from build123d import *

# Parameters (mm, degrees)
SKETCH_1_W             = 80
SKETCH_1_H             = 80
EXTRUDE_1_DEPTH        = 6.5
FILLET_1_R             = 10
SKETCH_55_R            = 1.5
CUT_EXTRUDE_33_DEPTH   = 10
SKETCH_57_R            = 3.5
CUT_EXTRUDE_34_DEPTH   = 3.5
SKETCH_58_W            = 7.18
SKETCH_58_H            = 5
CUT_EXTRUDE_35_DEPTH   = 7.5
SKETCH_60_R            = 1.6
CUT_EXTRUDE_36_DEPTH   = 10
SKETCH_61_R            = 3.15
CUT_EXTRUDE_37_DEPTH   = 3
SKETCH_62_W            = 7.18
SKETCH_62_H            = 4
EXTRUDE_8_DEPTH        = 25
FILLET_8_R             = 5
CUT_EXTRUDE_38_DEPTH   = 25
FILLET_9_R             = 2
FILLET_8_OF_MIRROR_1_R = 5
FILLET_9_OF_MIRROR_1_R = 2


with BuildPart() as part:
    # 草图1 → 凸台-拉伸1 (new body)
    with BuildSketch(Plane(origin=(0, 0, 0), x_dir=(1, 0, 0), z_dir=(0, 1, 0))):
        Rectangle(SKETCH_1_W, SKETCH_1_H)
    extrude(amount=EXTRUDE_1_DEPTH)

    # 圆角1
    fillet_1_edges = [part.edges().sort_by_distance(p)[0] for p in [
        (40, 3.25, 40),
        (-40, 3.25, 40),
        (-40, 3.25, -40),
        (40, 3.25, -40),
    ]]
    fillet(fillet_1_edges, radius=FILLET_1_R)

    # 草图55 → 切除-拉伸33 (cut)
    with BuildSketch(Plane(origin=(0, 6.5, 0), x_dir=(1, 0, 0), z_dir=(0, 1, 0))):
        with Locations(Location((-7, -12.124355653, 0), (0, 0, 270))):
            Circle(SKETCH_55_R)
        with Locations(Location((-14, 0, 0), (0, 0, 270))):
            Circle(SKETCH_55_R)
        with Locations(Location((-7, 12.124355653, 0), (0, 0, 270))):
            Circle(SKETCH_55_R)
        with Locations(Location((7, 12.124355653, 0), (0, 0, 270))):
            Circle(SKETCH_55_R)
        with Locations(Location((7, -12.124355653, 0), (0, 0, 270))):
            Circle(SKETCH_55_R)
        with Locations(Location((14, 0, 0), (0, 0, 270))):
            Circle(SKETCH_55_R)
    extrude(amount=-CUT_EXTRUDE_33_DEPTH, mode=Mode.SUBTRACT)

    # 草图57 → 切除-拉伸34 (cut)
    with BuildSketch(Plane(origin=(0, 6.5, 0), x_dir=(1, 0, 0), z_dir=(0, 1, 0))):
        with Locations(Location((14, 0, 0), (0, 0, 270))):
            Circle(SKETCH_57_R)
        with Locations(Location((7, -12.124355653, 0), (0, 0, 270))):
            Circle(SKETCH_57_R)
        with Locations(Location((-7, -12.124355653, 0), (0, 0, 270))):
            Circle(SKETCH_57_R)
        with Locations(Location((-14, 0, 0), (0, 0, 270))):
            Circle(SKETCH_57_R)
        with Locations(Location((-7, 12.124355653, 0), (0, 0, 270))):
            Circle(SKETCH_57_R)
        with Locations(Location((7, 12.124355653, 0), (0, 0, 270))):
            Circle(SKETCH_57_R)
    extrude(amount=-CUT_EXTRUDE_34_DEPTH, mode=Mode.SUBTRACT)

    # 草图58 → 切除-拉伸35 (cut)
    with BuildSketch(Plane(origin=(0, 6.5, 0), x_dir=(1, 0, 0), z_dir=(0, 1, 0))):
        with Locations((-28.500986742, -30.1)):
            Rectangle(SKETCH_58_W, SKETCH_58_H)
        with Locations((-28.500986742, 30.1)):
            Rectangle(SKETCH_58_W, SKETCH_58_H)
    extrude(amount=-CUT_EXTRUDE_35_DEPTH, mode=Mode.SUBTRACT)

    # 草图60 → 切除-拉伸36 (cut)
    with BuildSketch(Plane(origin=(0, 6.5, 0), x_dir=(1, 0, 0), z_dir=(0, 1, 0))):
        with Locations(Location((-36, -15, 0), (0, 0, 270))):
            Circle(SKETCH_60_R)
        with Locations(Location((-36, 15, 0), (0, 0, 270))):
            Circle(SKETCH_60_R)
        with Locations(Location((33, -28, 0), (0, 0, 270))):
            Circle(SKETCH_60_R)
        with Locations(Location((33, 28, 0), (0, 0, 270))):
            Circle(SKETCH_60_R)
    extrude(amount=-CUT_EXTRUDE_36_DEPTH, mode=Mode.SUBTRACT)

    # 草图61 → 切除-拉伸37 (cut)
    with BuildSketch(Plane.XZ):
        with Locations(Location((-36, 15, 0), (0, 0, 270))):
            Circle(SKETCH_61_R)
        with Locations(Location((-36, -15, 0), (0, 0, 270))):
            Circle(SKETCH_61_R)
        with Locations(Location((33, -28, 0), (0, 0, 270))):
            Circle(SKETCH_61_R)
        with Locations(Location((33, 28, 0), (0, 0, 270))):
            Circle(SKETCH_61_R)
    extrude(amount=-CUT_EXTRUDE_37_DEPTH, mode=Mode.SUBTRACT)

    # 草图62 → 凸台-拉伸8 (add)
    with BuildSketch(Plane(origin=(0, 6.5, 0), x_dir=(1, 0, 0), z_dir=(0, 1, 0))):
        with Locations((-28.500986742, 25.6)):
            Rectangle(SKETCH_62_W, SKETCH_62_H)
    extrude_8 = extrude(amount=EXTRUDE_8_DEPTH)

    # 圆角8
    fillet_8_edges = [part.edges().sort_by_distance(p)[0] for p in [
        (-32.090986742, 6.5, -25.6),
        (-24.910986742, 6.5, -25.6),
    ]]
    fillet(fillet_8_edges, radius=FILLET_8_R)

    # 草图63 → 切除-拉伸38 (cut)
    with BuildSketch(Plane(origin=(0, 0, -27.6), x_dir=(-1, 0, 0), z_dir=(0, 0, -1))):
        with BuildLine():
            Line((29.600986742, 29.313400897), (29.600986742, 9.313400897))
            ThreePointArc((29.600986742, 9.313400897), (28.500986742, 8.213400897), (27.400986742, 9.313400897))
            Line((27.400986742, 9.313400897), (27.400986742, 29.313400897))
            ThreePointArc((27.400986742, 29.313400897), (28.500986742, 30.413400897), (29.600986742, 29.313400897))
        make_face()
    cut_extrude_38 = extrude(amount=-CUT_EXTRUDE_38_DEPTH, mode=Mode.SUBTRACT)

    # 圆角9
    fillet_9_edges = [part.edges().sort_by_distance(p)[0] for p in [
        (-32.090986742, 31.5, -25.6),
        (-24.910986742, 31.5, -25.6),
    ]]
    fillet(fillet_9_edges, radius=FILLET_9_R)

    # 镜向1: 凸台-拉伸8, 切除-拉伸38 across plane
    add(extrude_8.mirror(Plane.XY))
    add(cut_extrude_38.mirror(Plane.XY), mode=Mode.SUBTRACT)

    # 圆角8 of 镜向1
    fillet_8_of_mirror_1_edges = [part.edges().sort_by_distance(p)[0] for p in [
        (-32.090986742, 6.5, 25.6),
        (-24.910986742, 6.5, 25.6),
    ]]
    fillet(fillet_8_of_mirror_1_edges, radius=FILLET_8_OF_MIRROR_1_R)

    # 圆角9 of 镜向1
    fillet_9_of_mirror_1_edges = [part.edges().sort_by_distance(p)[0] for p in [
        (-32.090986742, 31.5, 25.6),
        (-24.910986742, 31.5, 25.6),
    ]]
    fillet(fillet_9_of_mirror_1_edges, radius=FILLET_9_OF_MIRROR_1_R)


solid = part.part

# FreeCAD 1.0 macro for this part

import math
import FreeCAD as App
import Part
import Sketcher


def edges_at(feature, points):
    """Names of the edges that pass closest to the given points."""
    edges = feature.Shape.Edges
    near = lambda p: min(range(len(edges)), key=lambda i: edges[i].distToShape(Part.Vertex(*p))[0])
    return sorted({f"Edge{near(p) + 1}" for p in points})


def add_polygon(sketch, points):
    """Adds a closed chain of lines whose ends are joined by coincident constraints."""
    first, n = sketch.GeometryCount, len(points)
    for a, b in zip(points, points[1:] + points[:1]):
        sketch.addGeometry(Part.LineSegment(App.Vector(*a, 0), App.Vector(*b, 0)), False)
    for i in range(n):
        sketch.addConstraint(Sketcher.Constraint("Coincident", first + i, 2, first + (i + 1) % n, 1))

doc = App.newDocument("Part")
body = doc.addObject("PartDesign::Body", "Body")

# Sketch on XZ plane
sketch1 = body.newObject("Sketcher::SketchObject", "Sketch")
sketch1.AttachmentSupport = (doc.getObject("XZ_Plane"), [""])
sketch1.MapMode = "FlatFace"
add_polygon(sketch1, [(-40, -40), (-40, 40), (40, 40), (40, -40)])  # lines 0-3
sketch1.addConstraint([
    Sketcher.Constraint("Vertical", 0),
    Sketcher.Constraint("Horizontal", 1),
    Sketcher.Constraint("Vertical", 2),
    Sketcher.Constraint("Horizontal", 3),
    Sketcher.Constraint("Symmetric", 0, 2, 2, 2, -1, 1),
    Sketcher.Constraint("Equal", 3, 0),
    Sketcher.Constraint("DistanceX", 1, 1, 1, 2, 80.0),
])
pad1 = body.newObject("PartDesign::Pad", "Pad")
pad1.Profile = sketch1
pad1.Length = 6.5
pad1.Reversed = True
doc.recompute()

fillet = body.newObject("PartDesign::Fillet", "Fillet")
fillet.Base = (pad1, edges_at(pad1, [
    (40, 3.25, 40),
    (-40, 3.25, 40),
    (-40, 3.25, -40),
    (40, 3.25, -40),
]))
fillet.Radius = 10

# Sketch on XZ plane
sketch2 = body.newObject("Sketcher::SketchObject", "Sketch001")
sketch2.AttachmentSupport = (doc.getObject("XZ_Plane"), [""])
sketch2.MapMode = "FlatFace"
sketch2.AttachmentOffset = App.Placement(App.Vector(0, 0, -6.5), App.Rotation())
sketch2.addGeometry([
    Part.Circle(App.Vector(-7, 12.124356, 0), App.Vector(0, 0, 1), 1.5),  # 0
    Part.Circle(App.Vector(-14, 0, 0), App.Vector(0, 0, 1), 1.5),  # 1
    Part.Circle(App.Vector(-7, -12.124356, 0), App.Vector(0, 0, 1), 1.5),  # 2
    Part.Circle(App.Vector(7, -12.124356, 0), App.Vector(0, 0, 1), 1.5),  # 3
    Part.Circle(App.Vector(7, 12.124356, 0), App.Vector(0, 0, 1), 1.5),  # 4
    Part.Circle(App.Vector(14, 0, 0), App.Vector(0, 0, 1), 1.5),  # 5
], False)
sketch2.addConstraint([
    Sketcher.Constraint("Equal", 0, 1),
    Sketcher.Constraint("Equal", 1, 2),
    Sketcher.Constraint("Equal", 2, 3),
    Sketcher.Constraint("Equal", 3, 4),
    Sketcher.Constraint("Equal", 4, 5),
    Sketcher.Constraint("Symmetric", 0, 3, 3, 3, -1, 1),
    Sketcher.Constraint("Symmetric", 2, 3, 4, 3, -1, 1),
    Sketcher.Constraint("Symmetric", 1, 3, 5, 3, -1, 1),
    Sketcher.Constraint("Symmetric", 2, 3, 3, 3, -2),
    Sketcher.Constraint("PointOnObject", 1, 3, -1),
    Sketcher.Constraint("Diameter", 0, 3.0),
    Sketcher.Constraint("DistanceX", 0, 3, -1, 1, 7.0),
    Sketcher.Constraint("DistanceX", 1, 3, -1, 1, 14.0),
    Sketcher.Constraint("DistanceY", 2, 3, 0, 3, 24.248711),
])
pocket1 = body.newObject("PartDesign::Pocket", "Pocket")
pocket1.Profile = sketch2
pocket1.Length = 10
pocket1.Reversed = True

# Sketch on XZ plane
sketch3 = body.newObject("Sketcher::SketchObject", "Sketch002")
sketch3.AttachmentSupport = (doc.getObject("XZ_Plane"), [""])
sketch3.MapMode = "FlatFace"
sketch3.AttachmentOffset = App.Placement(App.Vector(0, 0, -6.5), App.Rotation())
sketch3.addGeometry([
    Part.Circle(App.Vector(14, 0, 0), App.Vector(0, 0, 1), 3.5),  # 0
    Part.Circle(App.Vector(7, 12.124356, 0), App.Vector(0, 0, 1), 3.5),  # 1
    Part.Circle(App.Vector(-7, 12.124356, 0), App.Vector(0, 0, 1), 3.5),  # 2
    Part.Circle(App.Vector(-14, 0, 0), App.Vector(0, 0, 1), 3.5),  # 3
    Part.Circle(App.Vector(-7, -12.124356, 0), App.Vector(0, 0, 1), 3.5),  # 4
    Part.Circle(App.Vector(7, -12.124356, 0), App.Vector(0, 0, 1), 3.5),  # 5
], False)
sketch3.addConstraint([
    Sketcher.Constraint("Equal", 0, 1),
    Sketcher.Constraint("Equal", 1, 2),
    Sketcher.Constraint("Equal", 2, 3),
    Sketcher.Constraint("Equal", 3, 4),
    Sketcher.Constraint("Equal", 4, 5),
    Sketcher.Constraint("Symmetric", 0, 3, 3, 3, -1, 1),
    Sketcher.Constraint("Symmetric", 1, 3, 4, 3, -1, 1),
    Sketcher.Constraint("Symmetric", 2, 3, 5, 3, -1, 1),
    Sketcher.Constraint("Symmetric", 1, 3, 2, 3, -2),
    Sketcher.Constraint("PointOnObject", 0, 3, -1),
    Sketcher.Constraint("Diameter", 0, 7.0),
    Sketcher.Constraint("DistanceX", -1, 1, 0, 3, 14.0),
    Sketcher.Constraint("DistanceX", -1, 1, 1, 3, 7.0),
    Sketcher.Constraint("DistanceY", 4, 3, 2, 3, 24.248711),
])
pocket2 = body.newObject("PartDesign::Pocket", "Pocket001")
pocket2.Profile = sketch3
pocket2.Length = 3.5
pocket2.Reversed = True

# Sketch on XZ plane
sketch4 = body.newObject("Sketcher::SketchObject", "Sketch003")
sketch4.AttachmentSupport = (doc.getObject("XZ_Plane"), [""])
sketch4.MapMode = "FlatFace"
sketch4.AttachmentOffset = App.Placement(App.Vector(0, 0, -6.5), App.Rotation())
add_polygon(sketch4, [(-32.090987, 27.6), (-32.090987, 32.6), (-24.910987, 32.6), (-24.910987, 27.6)])  # lines 0-3
add_polygon(sketch4, [(-32.090987, -32.6), (-32.090987, -27.6), (-24.910987, -27.6), (-24.910987, -32.6)])  # lines 4-7
sketch4.addConstraint([
    Sketcher.Constraint("Vertical", 0),
    Sketcher.Constraint("Horizontal", 1),
    Sketcher.Constraint("Vertical", 2),
    Sketcher.Constraint("Horizontal", 3),
    Sketcher.Constraint("Vertical", 4),
    Sketcher.Constraint("Horizontal", 5),
    Sketcher.Constraint("Vertical", 6),
    Sketcher.Constraint("Horizontal", 7),
    Sketcher.Constraint("Symmetric", 3, 2, 4, 2, -1),
    Sketcher.Constraint("Symmetric", 1, 2, 6, 2, -1),
    Sketcher.Constraint("DistanceY", 0, 1, 0, 2, 5.0),
    Sketcher.Constraint("DistanceX", 1, 1, 1, 2, 7.18),
    Sketcher.Constraint("DistanceY", -1, 1, 0, 2, 32.6),
    Sketcher.Constraint("DistanceX", 0, 2, -1, 1, 32.090987),
])
pocket3 = body.newObject("PartDesign::Pocket", "Pocket002")
pocket3.Profile = sketch4
pocket3.Length = 7.5
pocket3.Reversed = True

# Sketch on XZ plane
sketch5 = body.newObject("Sketcher::SketchObject", "Sketch004")
sketch5.AttachmentSupport = (doc.getObject("XZ_Plane"), [""])
sketch5.MapMode = "FlatFace"
sketch5.AttachmentOffset = App.Placement(App.Vector(0, 0, -6.5), App.Rotation())
sketch5.addGeometry([
    Part.Circle(App.Vector(-36, 15, 0), App.Vector(0, 0, 1), 1.6),
    Part.Circle(App.Vector(-36, -15, 0), App.Vector(0, 0, 1), 1.6),
    Part.Circle(App.Vector(33, 28, 0), App.Vector(0, 0, 1), 1.6),
    Part.Circle(App.Vector(33, -28, 0), App.Vector(0, 0, 1), 1.6),
], False)
sketch5.addConstraint([
    Sketcher.Constraint("Equal", 0, 1),
    Sketcher.Constraint("Equal", 1, 2),
    Sketcher.Constraint("Equal", 2, 3),
    Sketcher.Constraint("Symmetric", 0, 3, 1, 3, -1),
    Sketcher.Constraint("Symmetric", 2, 3, 3, 3, -1),
    Sketcher.Constraint("Diameter", 0, 3.2),
    Sketcher.Constraint("DistanceX", 0, 3, -1, 1, 36.0),
    Sketcher.Constraint("DistanceY", -1, 1, 0, 3, 15.0),
    Sketcher.Constraint("DistanceX", -1, 1, 2, 3, 33.0),
    Sketcher.Constraint("DistanceY", -1, 1, 2, 3, 28.0),
])
pocket4 = body.newObject("PartDesign::Pocket", "Pocket003")
pocket4.Profile = sketch5
pocket4.Length = 10
pocket4.Reversed = True

# Sketch on XZ plane
sketch6 = body.newObject("Sketcher::SketchObject", "Sketch005")
sketch6.AttachmentSupport = (doc.getObject("XZ_Plane"), [""])
sketch6.MapMode = "FlatFace"
sketch6.addGeometry([
    Part.Circle(App.Vector(-36, 15, 0), App.Vector(0, 0, 1), 3.15),
    Part.Circle(App.Vector(-36, -15, 0), App.Vector(0, 0, 1), 3.15),
    Part.Circle(App.Vector(33, -28, 0), App.Vector(0, 0, 1), 3.15),
    Part.Circle(App.Vector(33, 28, 0), App.Vector(0, 0, 1), 3.15),
], False)
sketch6.addConstraint([
    Sketcher.Constraint("Equal", 0, 1),
    Sketcher.Constraint("Equal", 1, 2),
    Sketcher.Constraint("Equal", 2, 3),
    Sketcher.Constraint("Symmetric", 0, 3, 1, 3, -1),
    Sketcher.Constraint("Symmetric", 2, 3, 3, 3, -1),
    Sketcher.Constraint("Diameter", 0, 6.3),
    Sketcher.Constraint("DistanceX", 0, 3, -1, 1, 36.0),
    Sketcher.Constraint("DistanceY", -1, 1, 0, 3, 15.0),
    Sketcher.Constraint("DistanceX", -1, 1, 2, 3, 33.0),
    Sketcher.Constraint("DistanceY", 2, 3, -1, 1, 28.0),
])
pocket5 = body.newObject("PartDesign::Pocket", "Pocket004")
pocket5.Profile = sketch6
pocket5.Length = 3

# Sketch on XZ plane
sketch7 = body.newObject("Sketcher::SketchObject", "Sketch006")
sketch7.AttachmentSupport = (doc.getObject("XZ_Plane"), [""])
sketch7.MapMode = "FlatFace"
sketch7.AttachmentOffset = App.Placement(App.Vector(0, 0, -6.5), App.Rotation())
add_polygon(sketch7, [(-32.090987, -27.6), (-32.090987, -23.6), (-24.910987, -23.6), (-24.910987, -27.6)])  # lines 0-3
sketch7.addConstraint([
    Sketcher.Constraint("Vertical", 0),
    Sketcher.Constraint("Horizontal", 1),
    Sketcher.Constraint("Vertical", 2),
    Sketcher.Constraint("Horizontal", 3),
    Sketcher.Constraint("DistanceY", 0, 1, 0, 2, 4.0),
    Sketcher.Constraint("DistanceX", 1, 1, 1, 2, 7.18),
    Sketcher.Constraint("DistanceY", 0, 2, -1, 1, 23.6),
    Sketcher.Constraint("DistanceX", 0, 2, -1, 1, 32.090987),
])
pad2 = body.newObject("PartDesign::Pad", "Pad001")
pad2.Profile = sketch7
pad2.Length = 25
pad2.Reversed = True
doc.recompute()

fillet2 = body.newObject("PartDesign::Fillet", "Fillet001")
fillet2.Base = (pad2, edges_at(pad2, [(-32.091, 6.5, -25.6), (-24.911, 6.5, -25.6)]))
fillet2.Radius = 5

# Sketch on XY plane
sketch8 = body.newObject("Sketcher::SketchObject", "Sketch007")
sketch8.AttachmentSupport = (doc.getObject("XY_Plane"), [""])
sketch8.MapMode = "FlatFace"
sketch8.AttachmentOffset = App.Placement(App.Vector(0, 0, -27.6), App.Rotation())
sketch8.addGeometry([
    Part.LineSegment(App.Vector(-29.600987, 9.313401, 0), App.Vector(-29.600987, 29.313401, 0)),
    Part.ArcOfCircle(Part.Circle(App.Vector(-28.500987, 29.313401, 0), App.Vector(0, 0, 1), 1.1), math.radians(0), math.radians(180)),
    Part.LineSegment(App.Vector(-27.400987, 29.313401, 0), App.Vector(-27.400987, 9.313401, 0)),
    Part.ArcOfCircle(Part.Circle(App.Vector(-28.500987, 9.313401, 0), App.Vector(0, 0, 1), 1.1), math.radians(180), math.radians(360)),
], False)
sketch8.addConstraint([
    Sketcher.Constraint("Tangent", 0, 2, 1, 2),
    Sketcher.Constraint("Tangent", 1, 1, 2, 1),
    Sketcher.Constraint("Tangent", 2, 2, 3, 2),
    Sketcher.Constraint("Tangent", 3, 1, 0, 1),
    Sketcher.Constraint("Vertical", 0),
    Sketcher.Constraint("Vertical", 2),
    Sketcher.Constraint("Radius", 1, 1.1),
    Sketcher.Constraint("DistanceY", 0, 1, 0, 2, 20.0),
    Sketcher.Constraint("DistanceY", -1, 1, 1, 3, 29.313401),
    Sketcher.Constraint("DistanceX", 1, 3, -1, 1, 28.500987),
])
pocket6 = body.newObject("PartDesign::Pocket", "Pocket005")
pocket6.Profile = sketch8
pocket6.Length = 25
pocket6.Reversed = True
doc.recompute()

fillet3 = body.newObject("PartDesign::Fillet", "Fillet002")
fillet3.Base = (pocket6, edges_at(pocket6, [(-32.091, 31.5, -25.6), (-24.911, 31.5, -25.6)]))
fillet3.Radius = 2
doc.recompute()

mirrored = body.newObject("PartDesign::Mirrored", "Mirrored")
mirrored.Originals = [pad2, pocket6]
mirrored.MirrorPlane = (doc.getObject("XY_Plane"), [""])
body.Tip = mirrored
doc.recompute()

fillet4 = body.newObject("PartDesign::Fillet", "Fillet003")
fillet4.Base = (mirrored, edges_at(mirrored, [(-32.091, 6.5, 25.6), (-24.911, 6.5, 25.6)]))
fillet4.Radius = 5
doc.recompute()

fillet5 = body.newObject("PartDesign::Fillet", "Fillet004")
fillet5.Base = (fillet4, edges_at(fillet4, [(-32.091, 31.5, 25.6), (-24.911, 31.5, 25.6)]))
fillet5.Radius = 2

doc.recompute()
